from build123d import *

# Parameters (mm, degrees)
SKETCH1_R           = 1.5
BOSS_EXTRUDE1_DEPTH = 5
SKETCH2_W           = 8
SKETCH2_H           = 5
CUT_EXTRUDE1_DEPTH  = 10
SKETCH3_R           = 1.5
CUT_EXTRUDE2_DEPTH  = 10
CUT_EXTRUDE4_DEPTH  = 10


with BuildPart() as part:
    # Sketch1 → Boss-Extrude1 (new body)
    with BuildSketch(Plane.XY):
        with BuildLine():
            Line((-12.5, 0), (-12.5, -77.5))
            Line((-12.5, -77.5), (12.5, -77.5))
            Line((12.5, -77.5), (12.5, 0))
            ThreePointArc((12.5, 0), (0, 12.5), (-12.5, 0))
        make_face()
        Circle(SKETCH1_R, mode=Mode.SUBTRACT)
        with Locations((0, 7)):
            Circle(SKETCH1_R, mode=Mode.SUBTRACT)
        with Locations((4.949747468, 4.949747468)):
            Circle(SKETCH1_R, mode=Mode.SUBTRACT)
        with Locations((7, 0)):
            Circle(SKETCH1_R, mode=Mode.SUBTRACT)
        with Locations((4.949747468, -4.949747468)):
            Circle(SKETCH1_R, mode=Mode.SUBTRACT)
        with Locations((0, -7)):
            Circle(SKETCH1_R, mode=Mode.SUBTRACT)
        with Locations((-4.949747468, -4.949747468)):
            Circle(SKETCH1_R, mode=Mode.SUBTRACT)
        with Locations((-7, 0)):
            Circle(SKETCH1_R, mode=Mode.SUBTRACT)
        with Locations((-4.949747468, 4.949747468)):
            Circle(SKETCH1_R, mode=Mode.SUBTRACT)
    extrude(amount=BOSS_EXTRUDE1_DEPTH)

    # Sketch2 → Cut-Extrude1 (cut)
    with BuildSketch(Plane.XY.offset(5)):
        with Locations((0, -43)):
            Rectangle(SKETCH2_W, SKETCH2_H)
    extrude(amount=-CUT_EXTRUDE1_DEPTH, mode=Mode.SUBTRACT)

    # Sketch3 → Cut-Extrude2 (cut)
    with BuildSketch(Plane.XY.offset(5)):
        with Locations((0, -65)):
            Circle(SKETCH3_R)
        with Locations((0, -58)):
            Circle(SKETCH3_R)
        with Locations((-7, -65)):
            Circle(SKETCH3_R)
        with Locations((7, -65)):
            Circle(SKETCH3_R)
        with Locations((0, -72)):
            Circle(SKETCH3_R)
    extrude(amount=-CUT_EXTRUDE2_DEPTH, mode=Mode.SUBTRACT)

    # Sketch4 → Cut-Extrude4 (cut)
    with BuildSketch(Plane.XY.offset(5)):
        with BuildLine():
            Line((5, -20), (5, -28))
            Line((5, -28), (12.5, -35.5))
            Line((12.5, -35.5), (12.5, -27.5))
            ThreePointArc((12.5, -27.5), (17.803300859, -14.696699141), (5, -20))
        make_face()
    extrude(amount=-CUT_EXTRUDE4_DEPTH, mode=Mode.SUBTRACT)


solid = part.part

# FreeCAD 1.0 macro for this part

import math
import FreeCAD as App
import Part
import Sketcher
from FreeCAD import Vector
Q = App.Units.Quantity

doc = App.newDocument("Part")
params = doc.addObject("Spreadsheet::Sheet", "Params")
for row, (alias, value) in enumerate([
    ("sketch1_diameter", "3 mm"),
    ("sketch1_radius", "12.5 mm"),
    ("sketch1_height", "77.5 mm"),
    ("pad1_length", "5 mm"),
    ("sketch2_width", "8 mm"),
    ("sketch2_height", "5 mm"),
    ("pocket1_length", "10 mm"),
    ("sketch3_diameter", "3 mm"),
    ("pocket2_length", "10 mm"),
    ("sketch4_radius", "7.5 mm"),
    ("sketch4_height", "8 mm"),
    ("pocket3_length", "10 mm"),
], start=1):
    params.set(f"A{row}", alias)
    params.set(f"B{row}", "=" + value)
    params.setAlias(f"B{row}", alias)

body = doc.addObject("PartDesign::Body", "Body")

# Sketch on XY plane
sketch1 = doc.addObject("Sketcher::SketchObject", "Sketch")
body.addObject(sketch1)
sketch1.AttachmentSupport = (doc.XY_Plane, [""])
sketch1.MapMode = "FlatFace"
sketch1.addGeometry([
    Part.LineSegment(Vector(-12.5, 0, 0), Vector(-12.5, -77.5, 0)),  # 0
    Part.LineSegment(Vector(-12.5, -77.5, 0), Vector(12.5, -77.5, 0)),  # 1
    Part.LineSegment(Vector(12.5, -77.5, 0), Vector(12.5, 0, 0)),  # 2
    Part.ArcOfCircle(Part.Circle(Vector(0, 0, 0), Vector(0, 0, 1), 12.5), math.radians(0), math.radians(180)),  # 3
    Part.Circle(Vector(-4.9, -4.9, 0), Vector(0, 0, 1), 1.5),  # 4
    Part.Circle(Vector(0, -7, 0), Vector(0, 0, 1), 1.5),  # 5
    Part.Circle(Vector(4.9, -4.9, 0), Vector(0, 0, 1), 1.5),  # 6
    Part.Circle(Vector(-7, 0, 0), Vector(0, 0, 1), 1.5),  # 7
    Part.Circle(Vector(-4.9, 4.9, 0), Vector(0, 0, 1), 1.5),  # 8
    Part.Circle(Vector(0, 0, 0), Vector(0, 0, 1), 1.5),  # 9
    Part.Circle(Vector(7, 0, 0), Vector(0, 0, 1), 1.5),  # 10
    Part.Circle(Vector(0, 7, 0), Vector(0, 0, 1), 1.5),  # 11
    Part.Circle(Vector(4.9, 4.9, 0), Vector(0, 0, 1), 1.5),  # 12
], False)
sketch1.addConstraint([
    Sketcher.Constraint("Coincident", 0, 2, 1, 1),
    Sketcher.Constraint("Coincident", 1, 2, 2, 1),
    Sketcher.Constraint("Tangent", 2, 2, 3, 1),
    Sketcher.Constraint("Tangent", 3, 2, 0, 1),
    Sketcher.Constraint("Vertical", 0),
    Sketcher.Constraint("Horizontal", 1),
    Sketcher.Constraint("Vertical", 2),
    Sketcher.Constraint("Coincident", 3, 3, -1, 1),
    Sketcher.Constraint("Coincident", 9, 3, -1, 1),
    Sketcher.Constraint("Equal", 4, 5),
    Sketcher.Constraint("Equal", 5, 6),
    Sketcher.Constraint("Equal", 6, 7),
    Sketcher.Constraint("Equal", 7, 8),
    Sketcher.Constraint("Equal", 8, 9),
    Sketcher.Constraint("Equal", 9, 10),
    Sketcher.Constraint("Equal", 10, 11),
    Sketcher.Constraint("Equal", 11, 12),
    Sketcher.Constraint("Symmetric", 6, 3, 8, 3, -1, 1),
    Sketcher.Constraint("Symmetric", 7, 3, 10, 3, -1, 1),
    Sketcher.Constraint("Symmetric", 5, 3, 11, 3, -1, 1),
    Sketcher.Constraint("Symmetric", 4, 3, 12, 3, -1, 1),
    Sketcher.Constraint("Symmetric", 4, 3, 6, 3, -2),
    Sketcher.Constraint("PointOnObject", 5, 3, -2),
    Sketcher.Constraint("PointOnObject", 7, 3, -1),
    Sketcher.Constraint("Diameter", 4, Q("3 mm")),
    Sketcher.Constraint("Radius", 3, Q("12.5 mm")),
    Sketcher.Constraint("DistanceY", 0, 2, 0, 1, Q("77.5 mm")),
    Sketcher.Constraint("DistanceY", 5, 3, -1, 1, Q("7 mm")),
    Sketcher.Constraint("DistanceX", 7, 3, -1, 1, Q("7 mm")),
    Sketcher.Constraint("DistanceX", 4, 3, -1, 1, Q("4.949747 mm")),
    Sketcher.Constraint("DistanceY", 4, 3, -1, 1, Q("4.949747 mm")),
])
sketch1.setExpression("Constraints[24]", "Params.sketch1_diameter")
sketch1.setExpression("Constraints[25]", "Params.sketch1_radius")
sketch1.setExpression("Constraints[26]", "Params.sketch1_height")
pad1 = doc.addObject("PartDesign::Pad", "Pad")
body.addObject(pad1)
pad1.Profile = sketch1
pad1.setExpression("Length", "Params.pad1_length")

# Sketch on XY plane
sketch2 = doc.addObject("Sketcher::SketchObject", "Sketch001")
body.addObject(sketch2)
sketch2.AttachmentSupport = (doc.XY_Plane, [""])
sketch2.MapMode = "FlatFace"
sketch2.AttachmentOffset = App.Placement(Vector(0, 0, 5), App.Rotation())
sketch2.addGeometry([
    Part.LineSegment(Vector(-4, -40, 0), Vector(-4, -46, 0)),
    Part.LineSegment(Vector(-4, -46, 0), Vector(4, -46, 0)),
    Part.LineSegment(Vector(4, -46, 0), Vector(4, -40, 0)),
    Part.LineSegment(Vector(4, -40, 0), Vector(-4, -40, 0)),
], False)
sketch2.addConstraint([
    Sketcher.Constraint("Coincident", 0, 2, 1, 1),
    Sketcher.Constraint("Coincident", 1, 2, 2, 1),
    Sketcher.Constraint("Coincident", 2, 2, 3, 1),
    Sketcher.Constraint("Coincident", 3, 2, 0, 1),
    Sketcher.Constraint("Vertical", 0),
    Sketcher.Constraint("Horizontal", 1),
    Sketcher.Constraint("Vertical", 2),
    Sketcher.Constraint("Horizontal", 3),
    Sketcher.Constraint("DistanceX", 1, 1, 1, 2, Q("8 mm")),
    Sketcher.Constraint("DistanceY", 0, 2, 0, 1, Q("5 mm")),
    Sketcher.Constraint("DistanceX", 0, 2, -1, 1, Q("4 mm")),
    Sketcher.Constraint("DistanceY", 0, 2, -1, 1, Q("45.5 mm")),
])
sketch2.setExpression("Constraints[8]", "Params.sketch2_width")
sketch2.setExpression("Constraints[9]", "Params.sketch2_height")
pocket1 = doc.addObject("PartDesign::Pocket", "Pocket")
body.addObject(pocket1)
pocket1.Profile = sketch2
pocket1.setExpression("Length", "Params.pocket1_length")

# Sketch on XY plane
sketch3 = doc.addObject("Sketcher::SketchObject", "Sketch002")
body.addObject(sketch3)
sketch3.AttachmentSupport = (doc.XY_Plane, [""])
sketch3.MapMode = "FlatFace"
sketch3.AttachmentOffset = App.Placement(Vector(0, 0, 5), App.Rotation())
sketch3.addGeometry([
    Part.Circle(Vector(0, -65, 0), Vector(0, 0, 1), 1.5),  # 0
    Part.Circle(Vector(0, -58, 0), Vector(0, 0, 1), 1.5),  # 1
    Part.Circle(Vector(-7, -65, 0), Vector(0, 0, 1), 1.5),  # 2
    Part.Circle(Vector(7, -65, 0), Vector(0, 0, 1), 1.5),  # 3
    Part.Circle(Vector(0, -72, 0), Vector(0, 0, 1), 1.5),  # 4
], False)
sketch3.addConstraint([
    Sketcher.Constraint("Equal", 0, 1),
    Sketcher.Constraint("Equal", 1, 2),
    Sketcher.Constraint("Equal", 2, 3),
    Sketcher.Constraint("Equal", 3, 4),
    Sketcher.Constraint("Symmetric", 2, 3, 3, 3, -2),
    Sketcher.Constraint("PointOnObject", 0, 3, -2),
    Sketcher.Constraint("PointOnObject", 1, 3, -2),
    Sketcher.Constraint("PointOnObject", 4, 3, -2),
    Sketcher.Constraint("Horizontal", 0, 3, 2, 3),
    Sketcher.Constraint("Diameter", 0, Q("3 mm")),
    Sketcher.Constraint("DistanceY", 0, 3, -1, 1, Q("65 mm")),
    Sketcher.Constraint("DistanceY", 1, 3, -1, 1, Q("58 mm")),
    Sketcher.Constraint("DistanceX", 2, 3, -1, 1, Q("7 mm")),
    Sketcher.Constraint("DistanceY", 4, 3, -1, 1, Q("72 mm")),
])
sketch3.setExpression("Constraints[9]", "Params.sketch3_diameter")
pocket2 = doc.addObject("PartDesign::Pocket", "Pocket001")
body.addObject(pocket2)
pocket2.Profile = sketch3
pocket2.setExpression("Length", "Params.pocket2_length")

# Sketch on XY plane
sketch4 = doc.addObject("Sketcher::SketchObject", "Sketch003")
body.addObject(sketch4)
sketch4.AttachmentSupport = (doc.XY_Plane, [""])
sketch4.MapMode = "FlatFace"
sketch4.AttachmentOffset = App.Placement(Vector(0, 0, 5), App.Rotation())
sketch4.addGeometry([
    Part.LineSegment(Vector(5, -20, 0), Vector(5, -28, 0)),
    Part.LineSegment(Vector(5, -28, 0), Vector(12, -36, 0)),
    Part.LineSegment(Vector(12, -36, 0), Vector(12, -28, 0)),
    Part.ArcOfCircle(Part.Circle(Vector(12, -20, 0), Vector(0, 0, 1), 8), math.radians(-90), math.radians(180)),
], False)
sketch4.addConstraint([
    Sketcher.Constraint("Coincident", 0, 2, 1, 1),
    Sketcher.Constraint("Coincident", 1, 2, 2, 1),
    Sketcher.Constraint("Coincident", 2, 2, 3, 1),
    Sketcher.Constraint("Tangent", 3, 2, 0, 1),
    Sketcher.Constraint("Vertical", 0),
    Sketcher.Constraint("Vertical", 2),
    Sketcher.Constraint("Vertical", 3, 3, 1, 2),
    Sketcher.Constraint("Equal", 0, 2),
    Sketcher.Constraint("Radius", 3, Q("7.5 mm")),
    Sketcher.Constraint("DistanceY", 0, 2, 0, 1, Q("8 mm")),
    Sketcher.Constraint("DistanceY", 3, 3, -1, 1, Q("20 mm")),
    Sketcher.Constraint("DistanceX", -1, 1, 0, 2, Q("5 mm")),
])
sketch4.setExpression("Constraints[8]", "Params.sketch4_radius")
sketch4.setExpression("Constraints[9]", "Params.sketch4_height")
pocket3 = doc.addObject("PartDesign::Pocket", "Pocket002")
body.addObject(pocket3)
pocket3.Profile = sketch4
pocket3.setExpression("Length", "Params.pocket3_length")

doc.recompute()
